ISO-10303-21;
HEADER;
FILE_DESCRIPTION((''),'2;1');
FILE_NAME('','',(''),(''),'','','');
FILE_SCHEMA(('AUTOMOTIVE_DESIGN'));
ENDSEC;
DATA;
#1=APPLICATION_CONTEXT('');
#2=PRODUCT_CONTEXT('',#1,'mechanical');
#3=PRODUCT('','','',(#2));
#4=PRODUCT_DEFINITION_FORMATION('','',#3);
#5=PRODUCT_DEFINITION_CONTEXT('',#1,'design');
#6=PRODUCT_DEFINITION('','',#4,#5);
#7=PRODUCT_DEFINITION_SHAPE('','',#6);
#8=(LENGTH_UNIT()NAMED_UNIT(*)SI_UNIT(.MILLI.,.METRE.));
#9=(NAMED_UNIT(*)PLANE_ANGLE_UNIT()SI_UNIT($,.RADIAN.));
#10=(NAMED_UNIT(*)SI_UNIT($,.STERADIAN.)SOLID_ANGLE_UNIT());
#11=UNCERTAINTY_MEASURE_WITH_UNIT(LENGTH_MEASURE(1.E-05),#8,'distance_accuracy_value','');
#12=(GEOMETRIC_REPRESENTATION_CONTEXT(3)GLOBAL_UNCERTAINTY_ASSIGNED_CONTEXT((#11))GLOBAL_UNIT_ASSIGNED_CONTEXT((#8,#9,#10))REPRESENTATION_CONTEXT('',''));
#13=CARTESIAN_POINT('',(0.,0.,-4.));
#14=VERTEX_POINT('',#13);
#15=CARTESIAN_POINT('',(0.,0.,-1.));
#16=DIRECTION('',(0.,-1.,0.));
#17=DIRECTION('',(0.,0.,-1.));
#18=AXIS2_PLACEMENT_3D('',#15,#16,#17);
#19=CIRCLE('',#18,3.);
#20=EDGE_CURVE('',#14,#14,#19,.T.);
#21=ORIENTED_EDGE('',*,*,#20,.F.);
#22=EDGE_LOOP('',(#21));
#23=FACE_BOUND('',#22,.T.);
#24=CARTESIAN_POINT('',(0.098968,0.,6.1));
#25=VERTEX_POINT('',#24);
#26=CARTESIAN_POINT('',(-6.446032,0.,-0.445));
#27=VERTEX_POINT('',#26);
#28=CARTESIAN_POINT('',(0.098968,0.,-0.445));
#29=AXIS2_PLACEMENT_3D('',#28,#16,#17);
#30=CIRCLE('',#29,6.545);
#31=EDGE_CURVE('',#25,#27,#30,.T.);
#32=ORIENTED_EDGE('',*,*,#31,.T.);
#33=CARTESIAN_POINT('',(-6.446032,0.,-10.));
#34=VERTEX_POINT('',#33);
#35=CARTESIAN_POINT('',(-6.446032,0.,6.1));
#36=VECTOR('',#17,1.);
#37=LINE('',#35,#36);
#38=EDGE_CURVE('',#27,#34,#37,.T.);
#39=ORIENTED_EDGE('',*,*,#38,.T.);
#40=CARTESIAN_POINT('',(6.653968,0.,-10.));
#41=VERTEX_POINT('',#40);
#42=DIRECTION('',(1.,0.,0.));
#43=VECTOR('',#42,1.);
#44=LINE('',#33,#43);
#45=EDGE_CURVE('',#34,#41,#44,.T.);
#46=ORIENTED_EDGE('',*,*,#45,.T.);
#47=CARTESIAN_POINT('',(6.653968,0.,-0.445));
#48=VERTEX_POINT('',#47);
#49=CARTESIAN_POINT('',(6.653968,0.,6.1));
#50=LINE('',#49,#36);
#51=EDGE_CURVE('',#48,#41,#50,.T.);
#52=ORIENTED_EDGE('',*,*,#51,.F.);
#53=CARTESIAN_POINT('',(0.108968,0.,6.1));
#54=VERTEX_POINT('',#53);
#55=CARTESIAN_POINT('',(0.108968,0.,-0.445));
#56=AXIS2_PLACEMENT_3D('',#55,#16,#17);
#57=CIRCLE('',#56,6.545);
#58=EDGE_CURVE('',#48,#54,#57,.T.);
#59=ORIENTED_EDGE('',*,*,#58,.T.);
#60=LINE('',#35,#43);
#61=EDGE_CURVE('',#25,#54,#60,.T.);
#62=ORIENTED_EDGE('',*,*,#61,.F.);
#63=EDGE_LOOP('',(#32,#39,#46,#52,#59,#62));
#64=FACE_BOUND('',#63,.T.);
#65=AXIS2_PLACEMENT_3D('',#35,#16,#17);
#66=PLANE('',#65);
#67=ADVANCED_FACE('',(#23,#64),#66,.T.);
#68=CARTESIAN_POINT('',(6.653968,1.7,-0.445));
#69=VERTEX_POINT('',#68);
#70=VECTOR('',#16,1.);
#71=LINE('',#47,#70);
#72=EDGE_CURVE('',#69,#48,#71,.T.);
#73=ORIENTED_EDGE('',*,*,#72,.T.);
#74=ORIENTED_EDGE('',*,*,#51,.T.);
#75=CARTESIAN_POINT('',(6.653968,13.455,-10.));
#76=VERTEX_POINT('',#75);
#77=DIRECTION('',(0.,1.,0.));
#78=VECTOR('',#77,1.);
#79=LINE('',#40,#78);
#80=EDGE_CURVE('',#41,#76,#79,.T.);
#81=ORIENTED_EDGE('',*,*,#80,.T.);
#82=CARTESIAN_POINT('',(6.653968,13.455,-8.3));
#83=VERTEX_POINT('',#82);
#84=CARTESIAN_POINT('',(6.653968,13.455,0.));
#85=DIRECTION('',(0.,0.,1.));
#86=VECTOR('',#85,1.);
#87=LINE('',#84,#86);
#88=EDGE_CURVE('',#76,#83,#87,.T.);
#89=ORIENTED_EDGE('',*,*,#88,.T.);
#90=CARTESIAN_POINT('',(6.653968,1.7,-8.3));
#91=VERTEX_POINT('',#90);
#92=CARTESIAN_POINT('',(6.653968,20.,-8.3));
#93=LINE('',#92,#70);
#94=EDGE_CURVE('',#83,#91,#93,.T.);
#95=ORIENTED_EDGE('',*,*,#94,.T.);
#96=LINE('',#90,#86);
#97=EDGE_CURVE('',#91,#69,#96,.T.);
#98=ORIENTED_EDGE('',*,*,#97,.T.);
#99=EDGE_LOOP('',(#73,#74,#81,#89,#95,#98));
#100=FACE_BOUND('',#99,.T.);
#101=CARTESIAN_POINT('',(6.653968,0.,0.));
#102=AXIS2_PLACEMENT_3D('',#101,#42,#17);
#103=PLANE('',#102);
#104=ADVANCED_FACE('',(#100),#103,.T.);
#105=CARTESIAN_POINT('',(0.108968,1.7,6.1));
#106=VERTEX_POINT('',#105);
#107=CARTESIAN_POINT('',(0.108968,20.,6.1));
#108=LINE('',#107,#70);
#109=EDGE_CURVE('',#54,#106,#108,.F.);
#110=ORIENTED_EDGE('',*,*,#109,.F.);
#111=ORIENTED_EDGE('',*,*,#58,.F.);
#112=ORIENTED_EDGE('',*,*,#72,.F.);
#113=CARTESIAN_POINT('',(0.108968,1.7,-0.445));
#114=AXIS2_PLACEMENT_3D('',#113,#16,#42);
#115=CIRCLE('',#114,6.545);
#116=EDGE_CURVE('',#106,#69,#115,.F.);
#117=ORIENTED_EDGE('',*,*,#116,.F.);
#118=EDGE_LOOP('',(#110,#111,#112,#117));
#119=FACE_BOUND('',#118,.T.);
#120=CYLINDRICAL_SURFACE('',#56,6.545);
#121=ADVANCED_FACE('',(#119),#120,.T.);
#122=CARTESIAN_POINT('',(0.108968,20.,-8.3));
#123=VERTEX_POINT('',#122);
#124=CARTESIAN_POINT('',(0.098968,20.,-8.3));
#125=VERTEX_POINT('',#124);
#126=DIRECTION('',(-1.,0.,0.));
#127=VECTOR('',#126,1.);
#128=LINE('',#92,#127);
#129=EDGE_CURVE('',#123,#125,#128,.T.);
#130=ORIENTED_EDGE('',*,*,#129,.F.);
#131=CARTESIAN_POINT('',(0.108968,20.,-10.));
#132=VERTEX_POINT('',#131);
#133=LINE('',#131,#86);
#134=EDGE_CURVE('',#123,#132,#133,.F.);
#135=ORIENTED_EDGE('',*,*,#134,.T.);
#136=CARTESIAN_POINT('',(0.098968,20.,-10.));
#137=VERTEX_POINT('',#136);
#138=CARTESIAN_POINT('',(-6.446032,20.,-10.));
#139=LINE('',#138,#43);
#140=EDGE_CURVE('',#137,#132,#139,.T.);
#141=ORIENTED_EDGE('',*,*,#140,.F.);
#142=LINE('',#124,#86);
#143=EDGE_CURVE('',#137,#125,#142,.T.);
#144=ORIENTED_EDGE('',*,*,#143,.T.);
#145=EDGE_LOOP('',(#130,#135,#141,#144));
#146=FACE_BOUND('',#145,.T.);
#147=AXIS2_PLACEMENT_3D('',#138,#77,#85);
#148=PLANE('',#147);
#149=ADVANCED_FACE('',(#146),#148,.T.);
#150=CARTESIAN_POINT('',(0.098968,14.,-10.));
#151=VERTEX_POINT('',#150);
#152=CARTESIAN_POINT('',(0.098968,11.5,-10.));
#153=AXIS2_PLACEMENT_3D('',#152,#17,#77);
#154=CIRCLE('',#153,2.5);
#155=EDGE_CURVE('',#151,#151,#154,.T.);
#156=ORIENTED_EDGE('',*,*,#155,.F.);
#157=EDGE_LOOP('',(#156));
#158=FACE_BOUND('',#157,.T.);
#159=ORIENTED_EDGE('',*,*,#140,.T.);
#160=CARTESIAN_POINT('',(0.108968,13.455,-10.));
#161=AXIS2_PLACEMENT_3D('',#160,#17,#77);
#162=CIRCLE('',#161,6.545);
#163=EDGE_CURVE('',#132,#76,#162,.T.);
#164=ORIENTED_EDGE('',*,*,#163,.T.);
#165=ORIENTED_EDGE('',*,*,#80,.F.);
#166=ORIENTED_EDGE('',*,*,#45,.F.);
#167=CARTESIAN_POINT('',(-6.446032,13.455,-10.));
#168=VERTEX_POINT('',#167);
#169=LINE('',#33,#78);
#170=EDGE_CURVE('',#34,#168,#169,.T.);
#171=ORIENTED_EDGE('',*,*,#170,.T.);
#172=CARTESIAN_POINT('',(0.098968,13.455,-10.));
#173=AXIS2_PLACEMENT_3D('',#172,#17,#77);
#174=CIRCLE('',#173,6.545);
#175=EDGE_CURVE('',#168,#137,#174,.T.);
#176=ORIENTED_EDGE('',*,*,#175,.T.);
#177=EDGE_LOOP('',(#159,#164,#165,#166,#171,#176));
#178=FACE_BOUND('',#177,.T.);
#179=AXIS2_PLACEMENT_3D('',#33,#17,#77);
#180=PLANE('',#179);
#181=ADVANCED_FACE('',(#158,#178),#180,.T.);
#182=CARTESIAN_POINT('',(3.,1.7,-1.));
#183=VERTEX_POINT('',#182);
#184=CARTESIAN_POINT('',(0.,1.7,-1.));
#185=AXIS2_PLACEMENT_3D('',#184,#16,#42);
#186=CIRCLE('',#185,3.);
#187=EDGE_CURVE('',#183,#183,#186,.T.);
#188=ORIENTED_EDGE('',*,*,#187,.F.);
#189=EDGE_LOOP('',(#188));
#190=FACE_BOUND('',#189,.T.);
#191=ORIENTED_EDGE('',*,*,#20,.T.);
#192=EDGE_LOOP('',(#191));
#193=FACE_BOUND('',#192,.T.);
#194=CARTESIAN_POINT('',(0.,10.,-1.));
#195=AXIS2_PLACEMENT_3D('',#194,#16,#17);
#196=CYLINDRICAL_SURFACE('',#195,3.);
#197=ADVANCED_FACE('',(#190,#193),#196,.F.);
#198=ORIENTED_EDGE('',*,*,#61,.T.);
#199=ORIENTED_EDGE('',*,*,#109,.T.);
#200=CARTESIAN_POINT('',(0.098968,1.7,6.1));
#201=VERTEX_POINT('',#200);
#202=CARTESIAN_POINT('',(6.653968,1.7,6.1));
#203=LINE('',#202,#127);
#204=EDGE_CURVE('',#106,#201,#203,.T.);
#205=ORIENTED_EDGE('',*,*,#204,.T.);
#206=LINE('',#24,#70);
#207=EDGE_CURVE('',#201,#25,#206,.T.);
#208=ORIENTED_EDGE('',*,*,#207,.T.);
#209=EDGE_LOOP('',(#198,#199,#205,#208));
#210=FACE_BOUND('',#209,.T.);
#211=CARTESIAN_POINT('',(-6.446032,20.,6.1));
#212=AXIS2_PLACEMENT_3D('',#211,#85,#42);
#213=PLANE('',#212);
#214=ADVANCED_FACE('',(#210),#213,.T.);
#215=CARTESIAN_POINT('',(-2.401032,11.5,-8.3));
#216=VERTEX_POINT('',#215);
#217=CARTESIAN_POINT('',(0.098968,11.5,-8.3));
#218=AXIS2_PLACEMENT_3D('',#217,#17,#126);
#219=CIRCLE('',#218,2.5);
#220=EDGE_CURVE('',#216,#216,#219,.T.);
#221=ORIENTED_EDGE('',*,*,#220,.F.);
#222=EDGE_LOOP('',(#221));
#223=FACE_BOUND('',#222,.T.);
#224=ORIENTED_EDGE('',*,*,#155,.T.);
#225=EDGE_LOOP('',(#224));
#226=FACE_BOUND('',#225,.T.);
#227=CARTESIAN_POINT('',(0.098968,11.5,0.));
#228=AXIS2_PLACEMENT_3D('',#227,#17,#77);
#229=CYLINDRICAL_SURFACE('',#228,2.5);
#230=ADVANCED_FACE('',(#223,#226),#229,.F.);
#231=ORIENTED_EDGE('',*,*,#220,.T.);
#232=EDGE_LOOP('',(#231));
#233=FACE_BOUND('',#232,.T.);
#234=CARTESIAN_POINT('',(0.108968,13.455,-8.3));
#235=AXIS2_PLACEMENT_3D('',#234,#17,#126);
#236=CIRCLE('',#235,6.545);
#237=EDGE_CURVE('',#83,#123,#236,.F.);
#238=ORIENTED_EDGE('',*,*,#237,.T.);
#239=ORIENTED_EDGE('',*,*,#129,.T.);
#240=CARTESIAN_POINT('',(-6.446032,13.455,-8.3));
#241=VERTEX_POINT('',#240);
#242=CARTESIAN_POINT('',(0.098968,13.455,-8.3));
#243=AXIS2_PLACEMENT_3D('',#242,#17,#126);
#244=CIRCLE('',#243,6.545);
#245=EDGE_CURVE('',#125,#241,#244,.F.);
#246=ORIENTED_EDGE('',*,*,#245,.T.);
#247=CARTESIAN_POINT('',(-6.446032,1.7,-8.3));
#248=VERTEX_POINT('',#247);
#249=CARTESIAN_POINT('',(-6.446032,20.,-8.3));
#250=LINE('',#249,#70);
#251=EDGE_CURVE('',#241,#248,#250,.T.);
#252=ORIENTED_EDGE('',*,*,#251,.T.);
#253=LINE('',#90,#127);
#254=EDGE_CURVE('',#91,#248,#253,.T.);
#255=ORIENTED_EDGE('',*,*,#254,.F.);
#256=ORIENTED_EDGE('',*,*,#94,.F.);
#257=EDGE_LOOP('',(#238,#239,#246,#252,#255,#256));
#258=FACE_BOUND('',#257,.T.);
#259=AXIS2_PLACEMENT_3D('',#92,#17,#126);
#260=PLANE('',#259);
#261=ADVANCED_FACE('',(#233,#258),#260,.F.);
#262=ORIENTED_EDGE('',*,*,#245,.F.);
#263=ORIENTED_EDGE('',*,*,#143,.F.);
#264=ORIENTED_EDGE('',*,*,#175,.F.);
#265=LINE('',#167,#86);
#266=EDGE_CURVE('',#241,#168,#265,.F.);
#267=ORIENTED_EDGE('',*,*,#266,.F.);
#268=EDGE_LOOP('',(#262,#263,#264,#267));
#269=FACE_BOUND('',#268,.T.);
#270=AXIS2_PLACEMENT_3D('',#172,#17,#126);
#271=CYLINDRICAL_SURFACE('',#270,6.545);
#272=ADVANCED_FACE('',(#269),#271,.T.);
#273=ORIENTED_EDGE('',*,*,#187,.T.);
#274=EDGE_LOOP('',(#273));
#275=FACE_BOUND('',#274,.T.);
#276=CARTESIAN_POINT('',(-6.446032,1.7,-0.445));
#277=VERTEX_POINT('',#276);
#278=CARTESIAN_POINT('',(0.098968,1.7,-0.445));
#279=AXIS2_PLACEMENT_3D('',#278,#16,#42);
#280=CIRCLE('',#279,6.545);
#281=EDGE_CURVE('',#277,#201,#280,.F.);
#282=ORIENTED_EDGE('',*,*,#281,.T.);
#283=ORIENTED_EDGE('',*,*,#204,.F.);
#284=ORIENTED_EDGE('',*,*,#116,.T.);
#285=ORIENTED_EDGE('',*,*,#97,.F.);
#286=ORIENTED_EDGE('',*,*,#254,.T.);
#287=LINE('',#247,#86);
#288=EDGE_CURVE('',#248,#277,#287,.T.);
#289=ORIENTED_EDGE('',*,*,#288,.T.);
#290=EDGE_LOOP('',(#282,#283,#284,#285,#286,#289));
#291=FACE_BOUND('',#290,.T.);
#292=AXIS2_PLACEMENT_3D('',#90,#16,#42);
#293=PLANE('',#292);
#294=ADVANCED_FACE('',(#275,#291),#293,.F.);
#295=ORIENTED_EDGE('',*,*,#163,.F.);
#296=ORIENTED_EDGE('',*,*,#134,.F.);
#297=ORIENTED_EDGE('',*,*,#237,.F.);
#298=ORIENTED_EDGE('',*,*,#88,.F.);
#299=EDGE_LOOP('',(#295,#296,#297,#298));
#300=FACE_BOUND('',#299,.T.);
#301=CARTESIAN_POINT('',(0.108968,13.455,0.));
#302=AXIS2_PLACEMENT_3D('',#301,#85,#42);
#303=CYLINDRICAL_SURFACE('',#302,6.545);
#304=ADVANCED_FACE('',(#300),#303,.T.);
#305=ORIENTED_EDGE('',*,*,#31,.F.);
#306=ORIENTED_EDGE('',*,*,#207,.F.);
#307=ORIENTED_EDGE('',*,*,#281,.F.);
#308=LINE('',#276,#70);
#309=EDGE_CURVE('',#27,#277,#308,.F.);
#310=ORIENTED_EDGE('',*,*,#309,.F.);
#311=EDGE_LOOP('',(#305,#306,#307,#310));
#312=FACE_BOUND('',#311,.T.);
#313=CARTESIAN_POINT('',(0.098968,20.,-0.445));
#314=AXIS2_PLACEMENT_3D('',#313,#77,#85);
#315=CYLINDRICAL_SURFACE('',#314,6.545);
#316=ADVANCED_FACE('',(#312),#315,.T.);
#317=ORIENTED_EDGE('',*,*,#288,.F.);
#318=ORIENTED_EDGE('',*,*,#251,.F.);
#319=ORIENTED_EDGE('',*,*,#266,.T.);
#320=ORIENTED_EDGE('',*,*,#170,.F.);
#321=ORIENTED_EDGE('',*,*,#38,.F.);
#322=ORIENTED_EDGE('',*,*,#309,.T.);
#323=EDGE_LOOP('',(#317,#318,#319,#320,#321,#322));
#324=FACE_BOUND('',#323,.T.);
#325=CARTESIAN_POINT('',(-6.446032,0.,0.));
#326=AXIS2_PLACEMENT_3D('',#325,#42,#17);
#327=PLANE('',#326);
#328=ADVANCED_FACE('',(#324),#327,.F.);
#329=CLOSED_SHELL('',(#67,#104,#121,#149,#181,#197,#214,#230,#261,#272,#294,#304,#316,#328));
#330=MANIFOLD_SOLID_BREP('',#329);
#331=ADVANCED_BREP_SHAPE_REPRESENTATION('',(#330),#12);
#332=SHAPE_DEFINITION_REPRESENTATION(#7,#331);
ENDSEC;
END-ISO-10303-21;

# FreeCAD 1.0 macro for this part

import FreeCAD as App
import Part
import Sketcher
from FreeCAD import Vector


def edges_at(feature, points):
    """Names of the edges that pass closest to the given points."""
    edges = feature.Shape.Edges
    near = lambda p: min(range(len(edges)), key=lambda i: edges[i].distToShape(Part.Vertex(*p))[0])
    return sorted({f"Edge{near(p) + 1}" for p in points})

doc = App.newDocument("Part")
body = doc.addObject("PartDesign::Body", "Body")

sketch1 = body.newObject("Sketcher::SketchObject", "Sketch")
sketch1.AttachmentSupport = (doc.getObject("YZ_Plane"), [""])
sketch1.MapMode = "FlatFace"
sketch1.AttachmentOffset = App.Placement(Vector(0, 0, 6.653968), App.Rotation())
sketch1.addGeometry([
    Part.LineSegment(Vector(20, 6, 0), Vector(0, 6, 0)),
    Part.LineSegment(Vector(0, 6, 0), Vector(0, -10, 0)),
    Part.LineSegment(Vector(0, -10, 0), Vector(20, -10, 0)),
    Part.LineSegment(Vector(20, -10, 0), Vector(20, 6, 0)),
], False)
sketch1.addConstraint([
    Sketcher.Constraint("Coincident", 0, 2, 1, 1),
    Sketcher.Constraint("Coincident", 1, 2, 2, 1),
    Sketcher.Constraint("Coincident", 2, 2, 3, 1),
    Sketcher.Constraint("Coincident", 3, 2, 0, 1),
    Sketcher.Constraint("Horizontal", 0),
    Sketcher.Constraint("Vertical", 1),
    Sketcher.Constraint("Horizontal", 2),
    Sketcher.Constraint("Vertical", 3),
    Sketcher.Constraint("PointOnObject", 0, 2, -2),
    Sketcher.Constraint("DistanceX", 0, 2, 0, 1, 20.0),
    Sketcher.Constraint("DistanceY", 1, 2, 1, 1, 16.1),
    Sketcher.Constraint("DistanceY", 1, 2, -1, 1, 10.0),
])
pad1 = body.newObject("PartDesign::Pad", "Pad")
pad1.Profile = sketch1
pad1.Length = 13.1
pad1.Reversed = True

sketch2 = body.newObject("Sketcher::SketchObject", "Sketch001")
sketch2.AttachmentSupport = (doc.getObject("YZ_Plane"), [""])
sketch2.MapMode = "FlatFace"
sketch2.AttachmentOffset = App.Placement(Vector(0, 0, -6.446032), App.Rotation())
sketch2.addGeometry([
    Part.LineSegment(Vector(20, -8, 0), Vector(2, -8, 0)),
    Part.LineSegment(Vector(2, -8, 0), Vector(2, 6, 0)),
    Part.LineSegment(Vector(2, 6, 0), Vector(20, 6, 0)),
    Part.LineSegment(Vector(20, 6, 0), Vector(20, -8, 0)),
], False)
sketch2.addConstraint([
    Sketcher.Constraint("Coincident", 0, 2, 1, 1),
    Sketcher.Constraint("Coincident", 1, 2, 2, 1),
    Sketcher.Constraint("Coincident", 2, 2, 3, 1),
    Sketcher.Constraint("Coincident", 3, 2, 0, 1),
    Sketcher.Constraint("Horizontal", 0),
    Sketcher.Constraint("Vertical", 1),
    Sketcher.Constraint("Horizontal", 2),
    Sketcher.Constraint("Vertical", 3),
    Sketcher.Constraint("DistanceX", 0, 2, 0, 1, 18.3),
    Sketcher.Constraint("DistanceY", 1, 1, 1, 2, 14.4),
    Sketcher.Constraint("DistanceX", -1, 1, 2, 2, 20.0),
    Sketcher.Constraint("DistanceY", 0, 2, -1, 1, 8.3),
])
pocket1 = body.newObject("PartDesign::Pocket", "Pocket")
pocket1.Profile = sketch2
pocket1.Type = "ThroughAll"
pocket1.Reversed = True
doc.recompute()

fillet = body.newObject("PartDesign::Fillet", "Fillet")
fillet.Base = (pocket1, edges_at(pocket1, [
    (-6.446, 20, -9.15),
    (6.654, 0.85, 6.1),
    (-6.446, 0.85, 6.1),
    (6.654, 20, -9.15),
]))
fillet.Radius = 6.545

sketch3 = body.newObject("Sketcher::SketchObject", "Sketch002")
sketch3.AttachmentSupport = (doc.getObject("XZ_Plane"), [""])
sketch3.MapMode = "FlatFace"
sketch3.addGeometry(Part.Circle(Vector(0, -1, 0), Vector(0, 0, 1), 3), False)
sketch3.addConstraint([
    Sketcher.Constraint("PointOnObject", 0, 3, -2),
    Sketcher.Constraint("Diameter", 0, 6.0),
    Sketcher.Constraint("DistanceY", 0, 3, -1, 1, 1.0),
])
pocket2 = body.newObject("PartDesign::Pocket", "Pocket001")
pocket2.Profile = sketch3
pocket2.Length = 10

sketch4 = body.newObject("Sketcher::SketchObject", "Sketch003")
sketch4.AttachmentSupport = (doc.getObject("XY_Plane"), [""])
sketch4.MapMode = "FlatFace"
sketch4.AttachmentOffset = App.Placement(Vector(0, 0, -10), App.Rotation())
sketch4.addGeometry(Part.Circle(Vector(0.1, 11.5, 0), Vector(0, 0, 1), 2.5), False)
sketch4.addConstraint([
    Sketcher.Constraint("Diameter", 0, 5.0),
    Sketcher.Constraint("DistanceY", -1, 1, 0, 3, 11.5),
    Sketcher.Constraint("DistanceX", -1, 1, 0, 3, 0.098968),
])
pocket3 = body.newObject("PartDesign::Pocket", "Pocket002")
pocket3.Profile = sketch4
pocket3.Length = 10
pocket3.Reversed = True

doc.recompute()
